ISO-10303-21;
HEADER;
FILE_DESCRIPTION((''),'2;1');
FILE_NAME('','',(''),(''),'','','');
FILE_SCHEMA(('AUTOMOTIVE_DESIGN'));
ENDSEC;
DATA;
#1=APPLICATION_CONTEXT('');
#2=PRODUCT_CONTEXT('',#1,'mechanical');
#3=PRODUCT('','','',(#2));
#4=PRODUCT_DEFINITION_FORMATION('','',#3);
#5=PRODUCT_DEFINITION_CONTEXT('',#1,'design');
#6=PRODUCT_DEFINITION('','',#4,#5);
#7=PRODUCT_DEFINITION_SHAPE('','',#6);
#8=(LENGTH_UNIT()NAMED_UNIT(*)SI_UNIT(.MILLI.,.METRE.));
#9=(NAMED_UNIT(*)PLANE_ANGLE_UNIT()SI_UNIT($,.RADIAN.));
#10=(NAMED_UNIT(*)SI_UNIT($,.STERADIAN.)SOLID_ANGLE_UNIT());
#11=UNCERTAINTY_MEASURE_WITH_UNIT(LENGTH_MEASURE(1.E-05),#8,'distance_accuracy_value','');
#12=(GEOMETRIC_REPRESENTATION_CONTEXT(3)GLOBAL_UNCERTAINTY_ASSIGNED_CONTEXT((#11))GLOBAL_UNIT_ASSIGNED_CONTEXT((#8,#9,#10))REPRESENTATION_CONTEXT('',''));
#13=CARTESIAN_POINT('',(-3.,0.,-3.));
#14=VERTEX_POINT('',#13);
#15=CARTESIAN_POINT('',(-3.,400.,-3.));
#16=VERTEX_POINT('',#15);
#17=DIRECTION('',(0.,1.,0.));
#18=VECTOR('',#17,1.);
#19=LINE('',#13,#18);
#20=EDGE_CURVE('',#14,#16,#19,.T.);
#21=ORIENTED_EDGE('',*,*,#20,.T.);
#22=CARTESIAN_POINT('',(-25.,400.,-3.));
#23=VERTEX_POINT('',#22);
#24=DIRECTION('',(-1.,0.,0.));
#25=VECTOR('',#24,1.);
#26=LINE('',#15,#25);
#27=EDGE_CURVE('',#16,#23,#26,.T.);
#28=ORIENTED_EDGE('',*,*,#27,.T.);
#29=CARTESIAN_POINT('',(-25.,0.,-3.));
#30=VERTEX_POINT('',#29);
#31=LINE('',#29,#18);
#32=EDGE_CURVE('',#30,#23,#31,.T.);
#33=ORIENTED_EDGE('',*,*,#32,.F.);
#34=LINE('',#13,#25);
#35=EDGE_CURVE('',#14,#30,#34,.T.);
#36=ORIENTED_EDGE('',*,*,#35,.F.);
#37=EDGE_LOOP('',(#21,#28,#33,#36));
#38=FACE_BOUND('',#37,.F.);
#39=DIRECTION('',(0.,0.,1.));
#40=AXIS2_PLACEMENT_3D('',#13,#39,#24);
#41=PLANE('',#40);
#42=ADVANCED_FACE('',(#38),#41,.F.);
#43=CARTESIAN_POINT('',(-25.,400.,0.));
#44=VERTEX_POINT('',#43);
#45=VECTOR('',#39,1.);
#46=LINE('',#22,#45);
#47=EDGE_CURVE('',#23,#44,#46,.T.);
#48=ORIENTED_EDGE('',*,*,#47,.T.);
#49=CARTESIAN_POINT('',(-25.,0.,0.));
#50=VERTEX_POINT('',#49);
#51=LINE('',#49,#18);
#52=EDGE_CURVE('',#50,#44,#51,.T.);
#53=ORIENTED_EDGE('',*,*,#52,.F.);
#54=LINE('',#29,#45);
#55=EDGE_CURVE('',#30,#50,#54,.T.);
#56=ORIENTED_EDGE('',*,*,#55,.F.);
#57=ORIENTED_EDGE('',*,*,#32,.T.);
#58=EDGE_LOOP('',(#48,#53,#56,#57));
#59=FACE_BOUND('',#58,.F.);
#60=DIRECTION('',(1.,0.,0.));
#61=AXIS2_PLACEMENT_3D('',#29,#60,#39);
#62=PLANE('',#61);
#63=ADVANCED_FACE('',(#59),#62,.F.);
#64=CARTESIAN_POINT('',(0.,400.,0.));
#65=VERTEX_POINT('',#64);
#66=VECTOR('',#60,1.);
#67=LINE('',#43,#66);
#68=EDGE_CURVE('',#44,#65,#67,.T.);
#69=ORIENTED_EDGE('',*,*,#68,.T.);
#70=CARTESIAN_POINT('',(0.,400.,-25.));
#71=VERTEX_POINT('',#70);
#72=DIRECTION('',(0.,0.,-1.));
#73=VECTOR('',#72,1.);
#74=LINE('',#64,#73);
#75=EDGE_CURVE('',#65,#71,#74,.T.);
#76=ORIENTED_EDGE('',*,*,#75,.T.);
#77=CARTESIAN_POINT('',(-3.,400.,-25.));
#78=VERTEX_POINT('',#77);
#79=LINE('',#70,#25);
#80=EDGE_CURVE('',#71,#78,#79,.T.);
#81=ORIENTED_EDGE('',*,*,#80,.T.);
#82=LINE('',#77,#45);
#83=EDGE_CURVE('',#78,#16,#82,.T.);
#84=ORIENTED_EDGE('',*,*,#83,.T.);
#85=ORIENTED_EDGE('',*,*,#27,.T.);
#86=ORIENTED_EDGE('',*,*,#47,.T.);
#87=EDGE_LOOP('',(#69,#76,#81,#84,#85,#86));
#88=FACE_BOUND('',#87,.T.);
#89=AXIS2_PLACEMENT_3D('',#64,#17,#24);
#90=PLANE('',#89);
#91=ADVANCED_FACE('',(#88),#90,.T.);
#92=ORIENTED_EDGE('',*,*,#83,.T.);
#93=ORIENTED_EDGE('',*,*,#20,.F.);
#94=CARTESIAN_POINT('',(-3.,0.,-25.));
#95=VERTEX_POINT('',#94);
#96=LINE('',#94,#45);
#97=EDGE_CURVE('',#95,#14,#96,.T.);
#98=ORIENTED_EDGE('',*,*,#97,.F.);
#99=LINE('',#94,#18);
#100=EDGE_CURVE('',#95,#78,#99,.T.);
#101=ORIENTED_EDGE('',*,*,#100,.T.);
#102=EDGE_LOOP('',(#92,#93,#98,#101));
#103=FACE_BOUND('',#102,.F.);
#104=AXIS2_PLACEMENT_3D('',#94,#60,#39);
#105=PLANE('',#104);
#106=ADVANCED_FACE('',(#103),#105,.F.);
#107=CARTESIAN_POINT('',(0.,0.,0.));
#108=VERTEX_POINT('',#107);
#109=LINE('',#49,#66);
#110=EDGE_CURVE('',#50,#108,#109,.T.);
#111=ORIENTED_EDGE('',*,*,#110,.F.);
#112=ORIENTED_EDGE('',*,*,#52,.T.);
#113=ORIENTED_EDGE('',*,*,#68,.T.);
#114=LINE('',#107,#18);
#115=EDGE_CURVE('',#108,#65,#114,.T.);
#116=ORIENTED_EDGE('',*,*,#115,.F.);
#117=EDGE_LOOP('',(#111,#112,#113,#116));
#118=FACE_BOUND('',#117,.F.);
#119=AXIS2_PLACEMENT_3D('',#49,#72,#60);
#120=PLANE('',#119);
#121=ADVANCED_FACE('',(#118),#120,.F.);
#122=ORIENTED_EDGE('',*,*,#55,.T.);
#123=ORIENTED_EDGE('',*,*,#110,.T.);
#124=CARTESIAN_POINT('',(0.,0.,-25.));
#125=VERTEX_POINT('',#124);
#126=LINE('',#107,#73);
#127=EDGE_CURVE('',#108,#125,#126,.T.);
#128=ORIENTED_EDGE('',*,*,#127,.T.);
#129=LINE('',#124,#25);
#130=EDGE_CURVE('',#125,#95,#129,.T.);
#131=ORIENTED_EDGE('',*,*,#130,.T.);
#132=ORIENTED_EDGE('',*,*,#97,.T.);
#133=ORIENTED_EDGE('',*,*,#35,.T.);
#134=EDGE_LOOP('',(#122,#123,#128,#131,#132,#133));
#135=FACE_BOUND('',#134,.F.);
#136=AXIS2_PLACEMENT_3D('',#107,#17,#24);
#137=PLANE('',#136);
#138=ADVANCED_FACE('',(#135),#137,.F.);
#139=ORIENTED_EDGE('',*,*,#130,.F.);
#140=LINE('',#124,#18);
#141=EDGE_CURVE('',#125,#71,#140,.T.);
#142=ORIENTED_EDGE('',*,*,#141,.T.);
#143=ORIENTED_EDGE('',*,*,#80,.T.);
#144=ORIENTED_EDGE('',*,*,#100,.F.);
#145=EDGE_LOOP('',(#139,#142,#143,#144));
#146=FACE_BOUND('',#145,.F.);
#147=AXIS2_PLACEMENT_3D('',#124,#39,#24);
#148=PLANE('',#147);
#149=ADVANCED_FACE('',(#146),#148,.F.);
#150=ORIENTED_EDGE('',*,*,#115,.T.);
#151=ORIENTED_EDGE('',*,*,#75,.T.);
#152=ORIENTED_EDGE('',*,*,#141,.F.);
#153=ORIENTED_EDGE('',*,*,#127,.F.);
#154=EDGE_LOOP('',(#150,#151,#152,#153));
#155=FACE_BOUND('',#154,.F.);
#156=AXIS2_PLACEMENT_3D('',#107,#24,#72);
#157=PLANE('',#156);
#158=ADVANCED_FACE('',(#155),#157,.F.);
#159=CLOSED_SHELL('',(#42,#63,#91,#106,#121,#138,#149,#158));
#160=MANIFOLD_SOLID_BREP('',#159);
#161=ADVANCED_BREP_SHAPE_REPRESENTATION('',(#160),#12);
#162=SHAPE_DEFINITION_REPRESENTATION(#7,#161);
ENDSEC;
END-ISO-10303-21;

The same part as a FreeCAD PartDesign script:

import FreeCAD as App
import Part
import Sketcher

V = App.Vector
Q = App.Units.Quantity


def add_polygon(sketch, points):
    """Adds a closed chain of lines whose ends are joined by coincident constraints."""
    first, n = sketch.GeometryCount, len(points)
    for a, b in zip(points, points[1:] + points[:1]):
        sketch.addGeometry(Part.LineSegment(App.Vector(*a, 0), App.Vector(*b, 0)), False)
    for i in range(n):
        sketch.addConstraint(Sketcher.Constraint("Coincident", first + i, 2, first + (i + 1) % n, 1))

doc = App.newDocument("Part")
body = doc.addObject("PartDesign::Body", "Body")

# Sketch on XZ plane
sketch1 = doc.addObject("Sketcher::SketchObject", "Sketch")
body.addObject(sketch1)
sketch1.AttachmentSupport = (doc.XZ_Plane, [""])
sketch1.MapMode = "FlatFace"
add_polygon(sketch1, [(-25, 0), (0, 0), (0, -25), (-3, -25), (-3, -3), (-25, -3)])  # lines 0-5
sketch1.addConstraint([
    Sketcher.Constraint("Horizontal", 0),
    Sketcher.Constraint("Vertical", 1),
    Sketcher.Constraint("Horizontal", 2),
    Sketcher.Constraint("Vertical", 3),
    Sketcher.Constraint("Horizontal", 4),
    Sketcher.Constraint("Vertical", 5),
    Sketcher.Constraint("Coincident", 0, 2, -1, 1),
    Sketcher.Constraint("Equal", 0, 1),
    Sketcher.Constraint("Equal", 4, 3),
    Sketcher.Constraint("DistanceX", 0, 1, 0, 2, Q("25 mm")),
    Sketcher.Constraint("DistanceX", 2, 2, 2, 1, Q("3 mm")),
])
pad1 = doc.addObject("PartDesign::Pad", "Pad")
body.addObject(pad1)
pad1.Profile = sketch1
pad1.Length = 400
pad1.Reversed = True

doc.recompute()
